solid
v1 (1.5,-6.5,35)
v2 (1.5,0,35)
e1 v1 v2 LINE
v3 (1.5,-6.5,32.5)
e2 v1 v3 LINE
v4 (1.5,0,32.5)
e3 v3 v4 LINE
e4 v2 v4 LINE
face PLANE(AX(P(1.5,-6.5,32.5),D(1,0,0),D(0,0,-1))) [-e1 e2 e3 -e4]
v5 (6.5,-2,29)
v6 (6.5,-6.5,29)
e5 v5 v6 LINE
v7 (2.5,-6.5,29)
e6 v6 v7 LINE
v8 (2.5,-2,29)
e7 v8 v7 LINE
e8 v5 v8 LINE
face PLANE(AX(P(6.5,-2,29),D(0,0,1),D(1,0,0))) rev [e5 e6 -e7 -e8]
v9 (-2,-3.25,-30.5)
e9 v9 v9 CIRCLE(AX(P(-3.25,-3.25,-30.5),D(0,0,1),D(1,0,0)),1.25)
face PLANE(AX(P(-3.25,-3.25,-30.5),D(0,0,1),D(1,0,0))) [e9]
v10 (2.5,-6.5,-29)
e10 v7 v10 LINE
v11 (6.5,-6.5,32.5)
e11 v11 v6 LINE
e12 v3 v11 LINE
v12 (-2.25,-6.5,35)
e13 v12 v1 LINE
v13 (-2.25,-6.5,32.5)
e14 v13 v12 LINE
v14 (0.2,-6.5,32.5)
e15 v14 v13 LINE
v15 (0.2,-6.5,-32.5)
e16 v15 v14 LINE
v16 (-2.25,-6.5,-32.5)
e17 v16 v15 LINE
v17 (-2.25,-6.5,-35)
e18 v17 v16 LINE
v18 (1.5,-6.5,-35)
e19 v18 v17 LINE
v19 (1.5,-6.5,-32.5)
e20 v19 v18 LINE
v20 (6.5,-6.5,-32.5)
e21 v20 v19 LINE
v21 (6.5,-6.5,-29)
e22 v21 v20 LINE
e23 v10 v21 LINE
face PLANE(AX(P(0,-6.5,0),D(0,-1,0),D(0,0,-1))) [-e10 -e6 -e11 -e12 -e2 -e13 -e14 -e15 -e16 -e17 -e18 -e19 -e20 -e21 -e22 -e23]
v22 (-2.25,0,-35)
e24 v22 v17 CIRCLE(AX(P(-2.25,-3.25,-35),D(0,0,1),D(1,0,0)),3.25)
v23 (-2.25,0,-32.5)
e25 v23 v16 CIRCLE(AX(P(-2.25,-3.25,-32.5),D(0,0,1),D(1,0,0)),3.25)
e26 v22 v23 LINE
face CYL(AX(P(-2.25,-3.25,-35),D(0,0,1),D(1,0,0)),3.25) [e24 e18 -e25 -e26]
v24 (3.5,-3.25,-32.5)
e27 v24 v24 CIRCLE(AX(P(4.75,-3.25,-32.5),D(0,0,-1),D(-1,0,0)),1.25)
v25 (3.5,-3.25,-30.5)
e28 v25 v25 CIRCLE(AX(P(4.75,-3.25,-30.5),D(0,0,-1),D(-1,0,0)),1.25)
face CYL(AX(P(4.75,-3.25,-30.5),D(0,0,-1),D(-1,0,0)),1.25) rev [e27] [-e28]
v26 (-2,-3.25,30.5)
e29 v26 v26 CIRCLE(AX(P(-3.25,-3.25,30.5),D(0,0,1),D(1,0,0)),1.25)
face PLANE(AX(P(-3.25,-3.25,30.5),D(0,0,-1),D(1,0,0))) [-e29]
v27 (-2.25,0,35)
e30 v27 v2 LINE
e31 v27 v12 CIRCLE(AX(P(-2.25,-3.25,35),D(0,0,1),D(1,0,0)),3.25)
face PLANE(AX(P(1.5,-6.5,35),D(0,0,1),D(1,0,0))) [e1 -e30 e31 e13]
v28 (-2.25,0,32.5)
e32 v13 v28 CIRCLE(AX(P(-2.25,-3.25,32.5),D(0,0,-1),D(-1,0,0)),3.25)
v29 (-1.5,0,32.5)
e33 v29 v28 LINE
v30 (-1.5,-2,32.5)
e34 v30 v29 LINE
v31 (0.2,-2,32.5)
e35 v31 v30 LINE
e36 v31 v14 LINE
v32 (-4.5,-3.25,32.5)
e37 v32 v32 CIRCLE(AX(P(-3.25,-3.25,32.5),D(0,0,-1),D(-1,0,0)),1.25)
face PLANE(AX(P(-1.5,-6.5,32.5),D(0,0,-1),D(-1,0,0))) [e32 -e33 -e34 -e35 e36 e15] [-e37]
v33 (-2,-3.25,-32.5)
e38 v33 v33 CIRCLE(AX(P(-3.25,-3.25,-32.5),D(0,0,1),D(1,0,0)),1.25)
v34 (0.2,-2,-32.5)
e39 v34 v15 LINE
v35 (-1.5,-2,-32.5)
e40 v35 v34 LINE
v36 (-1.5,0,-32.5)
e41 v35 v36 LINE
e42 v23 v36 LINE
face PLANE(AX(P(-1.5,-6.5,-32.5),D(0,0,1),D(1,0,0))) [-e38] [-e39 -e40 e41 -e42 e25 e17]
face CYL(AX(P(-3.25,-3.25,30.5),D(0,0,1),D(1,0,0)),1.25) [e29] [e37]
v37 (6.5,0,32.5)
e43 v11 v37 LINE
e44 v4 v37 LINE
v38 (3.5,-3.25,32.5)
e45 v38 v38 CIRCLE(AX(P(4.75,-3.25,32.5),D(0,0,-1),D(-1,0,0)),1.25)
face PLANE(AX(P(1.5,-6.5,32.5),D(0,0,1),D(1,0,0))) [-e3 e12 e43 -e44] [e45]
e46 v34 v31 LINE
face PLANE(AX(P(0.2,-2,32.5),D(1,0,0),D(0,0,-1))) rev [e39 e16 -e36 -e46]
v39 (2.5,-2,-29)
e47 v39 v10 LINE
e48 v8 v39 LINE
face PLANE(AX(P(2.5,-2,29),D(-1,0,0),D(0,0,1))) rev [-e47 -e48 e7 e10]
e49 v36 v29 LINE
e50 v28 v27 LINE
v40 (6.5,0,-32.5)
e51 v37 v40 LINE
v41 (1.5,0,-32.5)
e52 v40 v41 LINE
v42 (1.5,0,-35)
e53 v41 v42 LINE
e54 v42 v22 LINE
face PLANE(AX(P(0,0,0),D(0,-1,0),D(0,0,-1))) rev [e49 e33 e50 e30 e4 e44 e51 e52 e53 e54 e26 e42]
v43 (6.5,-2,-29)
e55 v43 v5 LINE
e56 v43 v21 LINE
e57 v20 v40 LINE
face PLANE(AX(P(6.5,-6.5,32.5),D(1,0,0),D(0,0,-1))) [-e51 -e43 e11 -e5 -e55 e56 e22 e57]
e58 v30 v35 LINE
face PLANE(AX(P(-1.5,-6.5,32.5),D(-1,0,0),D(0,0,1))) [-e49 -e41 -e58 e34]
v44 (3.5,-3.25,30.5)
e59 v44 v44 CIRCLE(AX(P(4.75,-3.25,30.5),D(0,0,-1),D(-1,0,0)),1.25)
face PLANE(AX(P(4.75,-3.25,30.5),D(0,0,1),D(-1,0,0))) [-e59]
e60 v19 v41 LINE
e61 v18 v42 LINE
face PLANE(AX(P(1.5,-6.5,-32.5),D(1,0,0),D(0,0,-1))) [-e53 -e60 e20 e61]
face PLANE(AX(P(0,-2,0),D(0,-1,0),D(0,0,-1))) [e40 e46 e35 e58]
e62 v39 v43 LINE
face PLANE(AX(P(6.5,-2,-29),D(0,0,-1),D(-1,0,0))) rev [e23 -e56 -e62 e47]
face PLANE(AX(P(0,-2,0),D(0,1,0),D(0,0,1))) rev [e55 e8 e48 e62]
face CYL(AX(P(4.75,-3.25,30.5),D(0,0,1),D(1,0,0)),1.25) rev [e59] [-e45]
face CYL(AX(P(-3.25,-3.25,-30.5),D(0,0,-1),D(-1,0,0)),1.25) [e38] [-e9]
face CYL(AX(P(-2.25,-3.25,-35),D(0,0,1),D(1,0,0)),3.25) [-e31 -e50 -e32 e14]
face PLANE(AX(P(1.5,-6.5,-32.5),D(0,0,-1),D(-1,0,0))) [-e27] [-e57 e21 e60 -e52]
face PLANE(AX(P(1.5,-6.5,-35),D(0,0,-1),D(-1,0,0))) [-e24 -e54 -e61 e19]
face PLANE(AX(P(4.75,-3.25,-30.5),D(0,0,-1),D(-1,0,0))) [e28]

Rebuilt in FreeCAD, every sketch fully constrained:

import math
import FreeCAD as App
import Part
import Sketcher

V = App.Vector

doc = App.newDocument("Part")
body = doc.addObject("PartDesign::Body", "Body")

# Sketch on XZ plane
sketch1 = body.newObject("Sketcher::SketchObject", "Sketch")
sketch1.AttachmentSupport = (doc.getObject("XZ_Plane"), [""])
sketch1.MapMode = "FlatFace"
sketch1.addGeometry(Part.LineSegment(V(1.5, 32.5, 0), V(6.5, 32.5, 0)), False)
sketch1.addGeometry(Part.LineSegment(V(6.5, 32.5, 0), V(6.5, -32.5, 0)), False)
sketch1.addGeometry(Part.LineSegment(V(6.5, -32.5, 0), V(1.5, -32.5, 0)), False)
sketch1.addGeometry(Part.LineSegment(V(1.5, -32.5, 0), V(1.5, -35, 0)), False)
sketch1.addGeometry(Part.LineSegment(V(1.5, -35, 0), V(-5.5, -35, 0)), False)
sketch1.addGeometry(Part.LineSegment(V(-5.5, -35, 0), V(-5.5, -32.5, 0)), False)
sketch1.addGeometry(Part.LineSegment(V(-5.5, -32.5, 0), V(-1.5, -32.5, 0)), False)
sketch1.addGeometry(Part.LineSegment(V(-1.5, -32.5, 0), V(-1.5, 32.5, 0)), False)
sketch1.addGeometry(Part.LineSegment(V(-1.5, 32.5, 0), V(-5.5, 32.5, 0)), False)
sketch1.addGeometry(Part.LineSegment(V(-5.5, 32.5, 0), V(-5.5, 35, 0)), False)
sketch1.addGeometry(Part.LineSegment(V(-5.5, 35, 0), V(1.5, 35, 0)), False)
sketch1.addGeometry(Part.LineSegment(V(1.5, 35, 0), V(1.5, 32.5, 0)), False)
sketch1.addConstraint(Sketcher.Constraint("Coincident", 0, 2, 1, 1))
sketch1.addConstraint(Sketcher.Constraint("Coincident", 1, 2, 2, 1))
sketch1.addConstraint(Sketcher.Constraint("Coincident", 2, 2, 3, 1))
sketch1.addConstraint(Sketcher.Constraint("Coincident", 3, 2, 4, 1))
sketch1.addConstraint(Sketcher.Constraint("Coincident", 4, 2, 5, 1))
sketch1.addConstraint(Sketcher.Constraint("Coincident", 5, 2, 6, 1))
sketch1.addConstraint(Sketcher.Constraint("Coincident", 6, 2, 7, 1))
sketch1.addConstraint(Sketcher.Constraint("Coincident", 7, 2, 8, 1))
sketch1.addConstraint(Sketcher.Constraint("Coincident", 8, 2, 9, 1))
sketch1.addConstraint(Sketcher.Constraint("Coincident", 9, 2, 10, 1))
sketch1.addConstraint(Sketcher.Constraint("Coincident", 10, 2, 11, 1))
sketch1.addConstraint(Sketcher.Constraint("Coincident", 11, 2, 0, 1))
sketch1.addConstraint(Sketcher.Constraint("Horizontal", 0))
sketch1.addConstraint(Sketcher.Constraint("Vertical", 1))
sketch1.addConstraint(Sketcher.Constraint("Horizontal", 2))
sketch1.addConstraint(Sketcher.Constraint("Vertical", 3))
sketch1.addConstraint(Sketcher.Constraint("Horizontal", 4))
sketch1.addConstraint(Sketcher.Constraint("Vertical", 5))
sketch1.addConstraint(Sketcher.Constraint("Horizontal", 6))
sketch1.addConstraint(Sketcher.Constraint("Vertical", 7))
sketch1.addConstraint(Sketcher.Constraint("Horizontal", 8))
sketch1.addConstraint(Sketcher.Constraint("Vertical", 9))
sketch1.addConstraint(Sketcher.Constraint("Horizontal", 10))
sketch1.addConstraint(Sketcher.Constraint("Vertical", 11))
sketch1.addConstraint(Sketcher.Constraint("Symmetric", 2, 2, 7, 2, -1, 1))
sketch1.addConstraint(Sketcher.Constraint("Symmetric", 6, 2, 11, 2, -1, 1))
sketch1.addConstraint(Sketcher.Constraint("Symmetric", 5, 2, 8, 2, -1))
sketch1.addConstraint(Sketcher.Constraint("Equal", 5, 9))
sketch1.addConstraint(Sketcher.Constraint("DistanceX", 0, 1, 0, 2, 5.0))
sketch1.addConstraint(Sketcher.Constraint("DistanceX", 4, 2, 4, 1, 7.0))
sketch1.addConstraint(Sketcher.Constraint("DistanceX", 6, 1, 6, 2, 4.0))
sketch1.addConstraint(Sketcher.Constraint("DistanceY", 1, 2, 1, 1, 65.0))
sketch1.addConstraint(Sketcher.Constraint("DistanceY", 3, 2, 3, 1, 2.5))
pad1 = body.newObject("PartDesign::Pad", "Pad")
pad1.Profile = sketch1
pad1.Length = 6.5

# Sketch on XY plane
sketch2 = body.newObject("Sketcher::SketchObject", "Sketch001")
sketch2.AttachmentSupport = (doc.getObject("XY_Plane"), [""])
sketch2.MapMode = "FlatFace"
sketch2.AttachmentOffset = App.Placement(V(0, 0, 35), App.Rotation())
sketch2.addGeometry(Part.LineSegment(V(-5.5, 0, 0), V(-5.5, -3.25, 0)), False)
sketch2.addGeometry(Part.ArcOfCircle(Part.Circle(V(-2.25, -3.25, 0), V(0, 0, 1), 3.25), math.radians(90), math.radians(180)), False)
sketch2.addGeometry(Part.LineSegment(V(-2.25, 0, 0), V(-5.5, 0, 0)), False)
sketch2.addGeometry(Part.LineSegment(V(-5.5, -6.5, 0), V(-2.25, -6.5, 0)), False)
sketch2.addGeometry(Part.ArcOfCircle(Part.Circle(V(-2.25, -3.25, 0), V(0, 0, 1), 3.25), math.radians(180), math.radians(270)), False)
sketch2.addGeometry(Part.LineSegment(V(-5.5, -3.25, 0), V(-5.5, -6.5, 0)), False)
sketch2.addConstraint(Sketcher.Constraint("Tangent", 0, 2, 1, 2))
sketch2.addConstraint(Sketcher.Constraint("Tangent", 1, 1, 2, 1))
sketch2.addConstraint(Sketcher.Constraint("Coincident", 2, 2, 0, 1))
sketch2.addConstraint(Sketcher.Constraint("Tangent", 3, 2, 4, 2))
sketch2.addConstraint(Sketcher.Constraint("Tangent", 4, 1, 5, 1))
sketch2.addConstraint(Sketcher.Constraint("Coincident", 5, 2, 3, 1))
sketch2.addConstraint(Sketcher.Constraint("Vertical", 0))
sketch2.addConstraint(Sketcher.Constraint("Horizontal", 2))
sketch2.addConstraint(Sketcher.Constraint("Horizontal", 3))
sketch2.addConstraint(Sketcher.Constraint("Vertical", 5))
sketch2.addConstraint(Sketcher.Constraint("Coincident", 4, 3, 1, 3))
sketch2.addConstraint(Sketcher.Constraint("Equal", 1, 4))
sketch2.addConstraint(Sketcher.Constraint("PointOnObject", 1, 1, -1))
sketch2.addConstraint(Sketcher.Constraint("Radius", 1, 3.25))
sketch2.addConstraint(Sketcher.Constraint("DistanceX", 0, 2, -1, 1, 5.5))
pocket1 = body.newObject("PartDesign::Pocket", "Pocket")
pocket1.Profile = sketch2
pocket1.Type = "ThroughAll"

# Sketch on XZ plane
sketch3 = body.newObject("Sketcher::SketchObject", "Sketch002")
sketch3.AttachmentSupport = (doc.getObject("XZ_Plane"), [""])
sketch3.MapMode = "FlatFace"
sketch3.AttachmentOffset = App.Placement(V(0, 0, 6.5), App.Rotation())
sketch3.addGeometry(Part.LineSegment(V(2.5, 29, 0), V(2.5, -29, 0)), False)
sketch3.addGeometry(Part.LineSegment(V(2.5, -29, 0), V(6.5, -29, 0)), False)
sketch3.addGeometry(Part.LineSegment(V(6.5, -29, 0), V(6.5, 29, 0)), False)
sketch3.addGeometry(Part.LineSegment(V(6.5, 29, 0), V(2.5, 29, 0)), False)
sketch3.addGeometry(Part.LineSegment(V(-1.5, 32.5, 0), V(-1.5, -32.5, 0)), False)
sketch3.addGeometry(Part.LineSegment(V(-1.5, -32.5, 0), V(0.2, -32.5, 0)), False)
sketch3.addGeometry(Part.LineSegment(V(0.2, -32.5, 0), V(0.2, 32.5, 0)), False)
sketch3.addGeometry(Part.LineSegment(V(0.2, 32.5, 0), V(-1.5, 32.5, 0)), False)
sketch3.addConstraint(Sketcher.Constraint("Coincident", 0, 2, 1, 1))
sketch3.addConstraint(Sketcher.Constraint("Coincident", 1, 2, 2, 1))
sketch3.addConstraint(Sketcher.Constraint("Coincident", 2, 2, 3, 1))
sketch3.addConstraint(Sketcher.Constraint("Coincident", 3, 2, 0, 1))
sketch3.addConstraint(Sketcher.Constraint("Coincident", 4, 2, 5, 1))
sketch3.addConstraint(Sketcher.Constraint("Coincident", 5, 2, 6, 1))
sketch3.addConstraint(Sketcher.Constraint("Coincident", 6, 2, 7, 1))
sketch3.addConstraint(Sketcher.Constraint("Coincident", 7, 2, 4, 1))
sketch3.addConstraint(Sketcher.Constraint("Vertical", 0))
sketch3.addConstraint(Sketcher.Constraint("Horizontal", 1))
sketch3.addConstraint(Sketcher.Constraint("Vertical", 2))
sketch3.addConstraint(Sketcher.Constraint("Horizontal", 3))
sketch3.addConstraint(Sketcher.Constraint("Vertical", 4))
sketch3.addConstraint(Sketcher.Constraint("Horizontal", 5))
sketch3.addConstraint(Sketcher.Constraint("Vertical", 6))
sketch3.addConstraint(Sketcher.Constraint("Horizontal", 7))
sketch3.addConstraint(Sketcher.Constraint("DistanceX", 1, 1, 1, 2, 4.0))
sketch3.addConstraint(Sketcher.Constraint("DistanceY", 0, 2, 0, 1, 58.0))
sketch3.addConstraint(Sketcher.Constraint("DistanceY", 4, 2, 4, 1, 65.0))
sketch3.addConstraint(Sketcher.Constraint("DistanceX", 5, 1, 5, 2, 1.7))
sketch3.addConstraint(Sketcher.Constraint("DistanceY", 0, 2, -1, 1, 29.0))
sketch3.addConstraint(Sketcher.Constraint("DistanceX", 4, 2, 0, 2, 4.0))
sketch3.addConstraint(Sketcher.Constraint("DistanceX", -1, 1, 0, 2, 2.5))
sketch3.addConstraint(Sketcher.Constraint("DistanceY", 4, 2, -1, 1, 32.5))
pocket2 = body.newObject("PartDesign::Pocket", "Pocket001")
pocket2.Profile = sketch3
pocket2.Length = 4.5

# Sketch on XY plane
sketch4 = body.newObject("Sketcher::SketchObject", "Sketch003")
sketch4.AttachmentSupport = (doc.getObject("XY_Plane"), [""])
sketch4.MapMode = "FlatFace"
sketch4.AttachmentOffset = App.Placement(V(0, 0, -32.5), App.Rotation())
sketch4.addGeometry(Part.Circle(V(-3.25, -3.25, 0), V(0, 0, 1), 1.25), False)
sketch4.addConstraint(Sketcher.Constraint("Diameter", 0, 2.5))
sketch4.addConstraint(Sketcher.Constraint("DistanceX", 0, 3, -1, 1, 3.25))
sketch4.addConstraint(Sketcher.Constraint("DistanceY", 0, 3, -1, 1, 3.25))
pad2 = body.newObject("PartDesign::Pad", "Pad001")
pad2.Profile = sketch4
pad2.Length = 2

# Sketch on XY plane
sketch5 = body.newObject("Sketcher::SketchObject", "Sketch004")
sketch5.AttachmentSupport = (doc.getObject("XY_Plane"), [""])
sketch5.MapMode = "FlatFace"
sketch5.AttachmentOffset = App.Placement(V(0, 0, -32.5), App.Rotation())
sketch5.addGeometry(Part.Circle(V(4.75, -3.25, 0), V(0, 0, 1), 1.25), False)
sketch5.addConstraint(Sketcher.Constraint("Diameter", 0, 2.5))
sketch5.addConstraint(Sketcher.Constraint("DistanceX", -1, 1, 0, 3, 4.75))
sketch5.addConstraint(Sketcher.Constraint("DistanceY", 0, 3, -1, 1, 3.25))
pocket3 = body.newObject("PartDesign::Pocket", "Pocket002")
pocket3.Profile = sketch5
pocket3.Length = 2
pocket3.Reversed = True
doc.recompute()

mirrored = body.newObject("PartDesign::Mirrored", "Mirrored")
mirrored.Originals = [pad2, pocket3]
mirrored.MirrorPlane = (doc.getObject("XY_Plane"), [""])
body.Tip = mirrored

doc.recompute()
